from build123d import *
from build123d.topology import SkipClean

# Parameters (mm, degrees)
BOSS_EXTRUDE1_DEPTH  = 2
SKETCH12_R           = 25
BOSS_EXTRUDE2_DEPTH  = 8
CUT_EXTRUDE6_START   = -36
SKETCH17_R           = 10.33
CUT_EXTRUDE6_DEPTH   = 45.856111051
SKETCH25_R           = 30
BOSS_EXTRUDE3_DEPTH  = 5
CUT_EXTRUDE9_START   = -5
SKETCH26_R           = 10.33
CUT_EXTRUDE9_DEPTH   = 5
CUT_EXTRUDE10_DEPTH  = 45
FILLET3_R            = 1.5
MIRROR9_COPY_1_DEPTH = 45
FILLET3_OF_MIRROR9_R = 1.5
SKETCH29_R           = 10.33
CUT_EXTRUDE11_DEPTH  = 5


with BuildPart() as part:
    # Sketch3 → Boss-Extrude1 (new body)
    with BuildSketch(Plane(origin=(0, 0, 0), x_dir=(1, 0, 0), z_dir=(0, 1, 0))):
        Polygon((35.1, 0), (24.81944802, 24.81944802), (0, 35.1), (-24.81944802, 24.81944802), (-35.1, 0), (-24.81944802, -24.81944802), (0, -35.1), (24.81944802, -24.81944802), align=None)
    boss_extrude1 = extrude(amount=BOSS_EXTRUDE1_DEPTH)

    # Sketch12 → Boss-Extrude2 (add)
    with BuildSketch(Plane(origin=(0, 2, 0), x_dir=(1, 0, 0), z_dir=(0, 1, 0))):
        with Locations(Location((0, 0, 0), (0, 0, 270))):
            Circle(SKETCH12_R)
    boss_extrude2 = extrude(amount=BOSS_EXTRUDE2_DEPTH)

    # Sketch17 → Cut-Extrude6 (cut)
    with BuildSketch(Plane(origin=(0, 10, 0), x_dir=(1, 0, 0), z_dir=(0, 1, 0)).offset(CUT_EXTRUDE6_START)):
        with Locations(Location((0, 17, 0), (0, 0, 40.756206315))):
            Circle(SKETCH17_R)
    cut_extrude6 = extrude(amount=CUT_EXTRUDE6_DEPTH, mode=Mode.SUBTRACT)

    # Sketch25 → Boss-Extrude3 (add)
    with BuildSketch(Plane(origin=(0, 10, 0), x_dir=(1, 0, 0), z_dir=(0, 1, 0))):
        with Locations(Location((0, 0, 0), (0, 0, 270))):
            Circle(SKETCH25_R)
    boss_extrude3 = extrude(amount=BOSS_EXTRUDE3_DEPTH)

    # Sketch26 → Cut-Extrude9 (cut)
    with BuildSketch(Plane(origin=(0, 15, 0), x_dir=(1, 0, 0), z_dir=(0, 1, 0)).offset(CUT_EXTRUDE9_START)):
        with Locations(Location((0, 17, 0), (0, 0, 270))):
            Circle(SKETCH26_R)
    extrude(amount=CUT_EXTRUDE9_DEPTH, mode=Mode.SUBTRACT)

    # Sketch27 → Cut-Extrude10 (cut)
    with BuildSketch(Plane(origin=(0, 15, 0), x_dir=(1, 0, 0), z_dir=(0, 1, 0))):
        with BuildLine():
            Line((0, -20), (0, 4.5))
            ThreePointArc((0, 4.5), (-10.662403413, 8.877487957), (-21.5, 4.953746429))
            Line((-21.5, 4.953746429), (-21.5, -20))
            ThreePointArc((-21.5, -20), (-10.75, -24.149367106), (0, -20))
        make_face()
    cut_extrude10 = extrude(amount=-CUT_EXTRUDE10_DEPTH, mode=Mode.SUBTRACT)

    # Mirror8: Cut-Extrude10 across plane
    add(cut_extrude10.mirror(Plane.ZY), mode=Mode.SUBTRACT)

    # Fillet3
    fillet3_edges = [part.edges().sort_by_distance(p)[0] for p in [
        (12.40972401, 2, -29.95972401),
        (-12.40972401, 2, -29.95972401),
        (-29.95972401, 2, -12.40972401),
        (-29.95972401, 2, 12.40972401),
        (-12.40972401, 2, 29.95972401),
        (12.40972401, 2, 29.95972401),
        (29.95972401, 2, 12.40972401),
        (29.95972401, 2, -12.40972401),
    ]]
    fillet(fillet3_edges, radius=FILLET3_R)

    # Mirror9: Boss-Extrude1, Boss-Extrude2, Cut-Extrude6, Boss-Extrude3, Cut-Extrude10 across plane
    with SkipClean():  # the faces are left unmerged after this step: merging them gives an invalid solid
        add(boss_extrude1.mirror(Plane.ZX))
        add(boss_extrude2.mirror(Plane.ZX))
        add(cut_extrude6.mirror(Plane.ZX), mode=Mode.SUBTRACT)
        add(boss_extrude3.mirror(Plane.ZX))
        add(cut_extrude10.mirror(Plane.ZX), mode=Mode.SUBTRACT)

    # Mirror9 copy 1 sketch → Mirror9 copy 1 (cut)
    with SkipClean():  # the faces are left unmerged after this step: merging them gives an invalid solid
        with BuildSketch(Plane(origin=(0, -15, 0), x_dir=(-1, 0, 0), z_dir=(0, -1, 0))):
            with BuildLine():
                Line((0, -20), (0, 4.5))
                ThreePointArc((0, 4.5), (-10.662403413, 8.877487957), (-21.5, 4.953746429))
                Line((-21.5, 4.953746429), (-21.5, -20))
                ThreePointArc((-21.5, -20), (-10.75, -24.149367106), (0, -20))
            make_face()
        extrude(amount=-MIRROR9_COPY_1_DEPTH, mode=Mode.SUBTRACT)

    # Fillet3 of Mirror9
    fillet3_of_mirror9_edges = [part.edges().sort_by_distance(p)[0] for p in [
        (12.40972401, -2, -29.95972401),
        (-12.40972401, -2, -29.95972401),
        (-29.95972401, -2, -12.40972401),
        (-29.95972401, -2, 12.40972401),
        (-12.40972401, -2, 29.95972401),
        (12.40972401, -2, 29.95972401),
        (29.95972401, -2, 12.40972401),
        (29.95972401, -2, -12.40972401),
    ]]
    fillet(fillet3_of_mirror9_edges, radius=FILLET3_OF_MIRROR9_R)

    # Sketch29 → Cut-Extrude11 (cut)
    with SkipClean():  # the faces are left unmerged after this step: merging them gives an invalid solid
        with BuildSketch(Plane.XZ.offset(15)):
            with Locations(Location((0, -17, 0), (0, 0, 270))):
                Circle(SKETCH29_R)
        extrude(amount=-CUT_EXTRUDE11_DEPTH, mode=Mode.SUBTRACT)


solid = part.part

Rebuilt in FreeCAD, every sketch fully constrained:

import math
import FreeCAD as App
import Part
import Sketcher
Q = App.Units.Quantity


def edges_at(feature, points):
    """Names of the edges that pass closest to the given points."""
    edges = feature.Shape.Edges
    near = lambda p: min(range(len(edges)), key=lambda i: edges[i].distToShape(Part.Vertex(*p))[0])
    return sorted({f"Edge{near(p) + 1}" for p in points})

doc = App.newDocument("Part")
body = doc.addObject("PartDesign::Body", "Body")

# Sketch on XZ plane
sketch1 = body.newObject("Sketcher::SketchObject", "Sketch")
sketch1.AttachmentSupport = (doc.getObject("XZ_Plane"), [""])
sketch1.MapMode = "FlatFace"
sketch1.addGeometry([
    Part.LineSegment(App.Vector(35, 0, 0), App.Vector(25, -25, 0)),  # 0
    Part.LineSegment(App.Vector(25, -25, 0), App.Vector(0, -35, 0)),  # 1
    Part.LineSegment(App.Vector(0, -35, 0), App.Vector(-25, -25, 0)),  # 2
    Part.LineSegment(App.Vector(-25, -25, 0), App.Vector(-35, 0, 0)),  # 3
    Part.LineSegment(App.Vector(-35, 0, 0), App.Vector(-25, 25, 0)),  # 4
    Part.LineSegment(App.Vector(-25, 25, 0), App.Vector(0, 35, 0)),  # 5
    Part.LineSegment(App.Vector(0, 35, 0), App.Vector(25, 25, 0)),  # 6
    Part.LineSegment(App.Vector(25, 25, 0), App.Vector(35, 0, 0)),  # 7
], False)
sketch1.addConstraint([
    Sketcher.Constraint("Coincident", 0, 2, 1, 1),
    Sketcher.Constraint("Coincident", 1, 2, 2, 1),
    Sketcher.Constraint("Coincident", 2, 2, 3, 1),
    Sketcher.Constraint("Coincident", 3, 2, 4, 1),
    Sketcher.Constraint("Coincident", 4, 2, 5, 1),
    Sketcher.Constraint("Coincident", 5, 2, 6, 1),
    Sketcher.Constraint("Coincident", 6, 2, 7, 1),
    Sketcher.Constraint("Coincident", 7, 2, 0, 1),
    Sketcher.Constraint("Symmetric", 0, 2, 4, 2, -1, 1),
    Sketcher.Constraint("Symmetric", 1, 2, 5, 2, -1, 1),
    Sketcher.Constraint("Symmetric", 2, 2, 6, 2, -1, 1),
    Sketcher.Constraint("Symmetric", 3, 2, 7, 2, -1, 1),
    Sketcher.Constraint("Symmetric", 0, 2, 2, 2, -2),
    Sketcher.Constraint("PointOnObject", 1, 2, -2),
    Sketcher.Constraint("PointOnObject", 3, 2, -1),
    Sketcher.Constraint("Perpendicular", 0, 2),
    Sketcher.Constraint("Equal", 0, 1),
    Sketcher.Constraint("Angle", 0, Q("-112.5 deg")),
    Sketcher.Constraint("DistanceY", 1, 2, -1, 1, 35.1),
])
pad1 = body.newObject("PartDesign::Pad", "Pad")
pad1.Profile = sketch1
pad1.Length = 2
pad1.Reversed = True

# Sketch on XZ plane
sketch2 = body.newObject("Sketcher::SketchObject", "Sketch001")
sketch2.AttachmentSupport = (doc.getObject("XZ_Plane"), [""])
sketch2.MapMode = "FlatFace"
sketch2.AttachmentOffset = App.Placement(App.Vector(0, 0, -2), App.Rotation())
sketch2.addGeometry(Part.Circle(App.Vector(0, 0, 0), App.Vector(0, 0, 1), 25), False)
sketch2.addConstraint([
    Sketcher.Constraint("Coincident", 0, 3, -1, 1),
    Sketcher.Constraint("Diameter", 0, 50.0),
])
pad2 = body.newObject("PartDesign::Pad", "Pad001")
pad2.Profile = sketch2
pad2.Length = 8
pad2.Reversed = True

# Sketch on XZ plane
sketch3 = body.newObject("Sketcher::SketchObject", "Sketch002")
sketch3.AttachmentSupport = (doc.getObject("XZ_Plane"), [""])
sketch3.MapMode = "FlatFace"
sketch3.AttachmentOffset = App.Placement(App.Vector(0, 0, 26), App.Rotation())
sketch3.addGeometry(Part.Circle(App.Vector(0, -17, 0), App.Vector(0, 0, 1), 10), False)
sketch3.addConstraint([
    Sketcher.Constraint("PointOnObject", 0, 3, -2),
    Sketcher.Constraint("Diameter", 0, 20.66),
    Sketcher.Constraint("DistanceY", 0, 3, -1, 1, 17.0),
])
pocket1 = body.newObject("PartDesign::Pocket", "Pocket")
pocket1.Profile = sketch3
pocket1.Length = 45.856111

# Sketch on XZ plane
sketch4 = body.newObject("Sketcher::SketchObject", "Sketch003")
sketch4.AttachmentSupport = (doc.getObject("XZ_Plane"), [""])
sketch4.MapMode = "FlatFace"
sketch4.AttachmentOffset = App.Placement(App.Vector(0, 0, -10), App.Rotation())
sketch4.addGeometry(Part.Circle(App.Vector(0, 0, 0), App.Vector(0, 0, 1), 30), False)
sketch4.addConstraint([
    Sketcher.Constraint("Coincident", 0, 3, -1, 1),
    Sketcher.Constraint("Diameter", 0, 60.0),
])
pad3 = body.newObject("PartDesign::Pad", "Pad002")
pad3.Profile = sketch4
pad3.Length = 5
pad3.Reversed = True

# Sketch on XZ plane
sketch5 = body.newObject("Sketcher::SketchObject", "Sketch004")
sketch5.AttachmentSupport = (doc.getObject("XZ_Plane"), [""])
sketch5.MapMode = "FlatFace"
sketch5.AttachmentOffset = App.Placement(App.Vector(0, 0, -10), App.Rotation())
sketch5.addGeometry(Part.Circle(App.Vector(0, -17, 0), App.Vector(0, 0, 1), 10), False)
sketch5.addConstraint([
    Sketcher.Constraint("PointOnObject", 0, 3, -2),
    Sketcher.Constraint("Diameter", 0, 20.66),
    Sketcher.Constraint("DistanceY", 0, 3, -1, 1, 17.0),
])
pocket2 = body.newObject("PartDesign::Pocket", "Pocket001")
pocket2.Profile = sketch5
pocket2.Length = 5

# Sketch on XZ plane
sketch6 = body.newObject("Sketcher::SketchObject", "Sketch005")
sketch6.AttachmentSupport = (doc.getObject("XZ_Plane"), [""])
sketch6.MapMode = "FlatFace"
sketch6.AttachmentOffset = App.Placement(App.Vector(0, 0, -15), App.Rotation())
sketch6.addGeometry([
    Part.LineSegment(App.Vector(0, 20, 0), App.Vector(0, -4, 0)),
    Part.ArcOfCircle(Part.Circle(App.Vector(-11, 7, 0), App.Vector(0, 0, 1), 16), math.radians(-131), math.radians(-47)),
    Part.LineSegment(App.Vector(-22, -5, 0), App.Vector(-22, 20, 0)),
    Part.ArcOfCircle(Part.Circle(App.Vector(-11, 8, 0), App.Vector(0, 0, 1), 16), math.radians(48), math.radians(132)),
], False)
sketch6.addConstraint([
    Sketcher.Constraint("Coincident", 0, 2, 1, 2),
    Sketcher.Constraint("Coincident", 1, 1, 2, 1),
    Sketcher.Constraint("Coincident", 2, 2, 3, 2),
    Sketcher.Constraint("Coincident", 3, 1, 0, 1),
    Sketcher.Constraint("Vertical", 0),
    Sketcher.Constraint("Vertical", 2),
    Sketcher.Constraint("Equal", 1, 3),
    Sketcher.Constraint("PointOnObject", 0, 2, -2),
    Sketcher.Constraint("Horizontal", 2, 2, 3, 1),
    Sketcher.Constraint("Radius", 1, 16.0),
    Sketcher.Constraint("DistanceY", 0, 2, 0, 1, 24.5),
    Sketcher.Constraint("DistanceX", 1, 3, -1, 1, 11.0),
    Sketcher.Constraint("DistanceY", -1, 1, 2, 2, 20.0),
    Sketcher.Constraint("DistanceX", 1, 1, -1, 1, 21.5),
])
pocket3 = body.newObject("PartDesign::Pocket", "Pocket002")
pocket3.Profile = sketch6
pocket3.Length = 45
pocket3.Reversed = True
doc.recompute()

mirrored = body.newObject("PartDesign::Mirrored", "Mirrored")
mirrored.Originals = [pocket3]
mirrored.MirrorPlane = (doc.getObject("YZ_Plane"), [""])
body.Tip = mirrored
doc.recompute()

fillet = body.newObject("PartDesign::Fillet", "Fillet")
fillet.Base = (mirrored, edges_at(mirrored, [
    (12.41, 2, -29.96),
    (-12.41, 2, -29.96),
    (-29.96, 2, -12.41),
    (-29.96, 2, 12.41),
    (-12.41, 2, 29.96),
    (12.41, 2, 29.96),
    (29.96, 2, 12.41),
    (29.96, 2, -12.41),
]))
fillet.Radius = 1.5
doc.recompute()

mirrored2 = body.newObject("PartDesign::Mirrored", "Mirrored001")
mirrored2.Originals = [pad1, pad2, pocket1, pad3, pocket3]
mirrored2.MirrorPlane = (doc.getObject("XZ_Plane"), [""])
body.Tip = mirrored2

# Sketch on XZ plane
sketch7 = body.newObject("Sketcher::SketchObject", "Sketch006")
sketch7.AttachmentSupport = (doc.getObject("XZ_Plane"), [""])
sketch7.MapMode = "FlatFace"
sketch7.AttachmentOffset = App.Placement(App.Vector(0, 0, 15), App.Rotation())
sketch7.addGeometry([
    Part.LineSegment(App.Vector(0, 20, 0), App.Vector(0, -4, 0)),
    Part.ArcOfCircle(Part.Circle(App.Vector(11, 7, 0), App.Vector(0, 0, 1), 16), math.radians(-133), math.radians(-49)),
    Part.LineSegment(App.Vector(22, -5, 0), App.Vector(22, 20, 0)),
    Part.ArcOfCircle(Part.Circle(App.Vector(11, 8, 0), App.Vector(0, 0, 1), 16), math.radians(48), math.radians(132)),
], False)
sketch7.addConstraint([
    Sketcher.Constraint("Coincident", 0, 2, 1, 1),
    Sketcher.Constraint("Coincident", 1, 2, 2, 1),
    Sketcher.Constraint("Coincident", 2, 2, 3, 1),
    Sketcher.Constraint("Coincident", 3, 2, 0, 1),
    Sketcher.Constraint("Vertical", 0),
    Sketcher.Constraint("Vertical", 2),
    Sketcher.Constraint("Equal", 1, 3),
    Sketcher.Constraint("PointOnObject", 0, 2, -2),
    Sketcher.Constraint("Horizontal", 2, 2, 3, 2),
    Sketcher.Constraint("Radius", 1, 16.0),
    Sketcher.Constraint("DistanceY", 0, 2, 0, 1, 24.5),
    Sketcher.Constraint("DistanceX", -1, 1, 1, 3, 11.0),
    Sketcher.Constraint("DistanceY", -1, 1, 2, 2, 20.0),
    Sketcher.Constraint("DistanceX", -1, 1, 1, 2, 21.5),
])
pocket4 = body.newObject("PartDesign::Pocket", "Pocket003")
pocket4.Profile = sketch7
pocket4.Length = 45
doc.recompute()

fillet2 = body.newObject("PartDesign::Fillet", "Fillet001")
fillet2.Base = (pocket4, edges_at(pocket4, [
    (12.41, -2, -29.96),
    (-12.41, -2, -29.96),
    (-29.96, -2, -12.41),
    (-29.96, -2, 12.41),
    (-12.41, -2, 29.96),
    (12.41, -2, 29.96),
    (29.96, -2, 12.41),
    (29.96, -2, -12.41),
]))
fillet2.Radius = 1.5

# Sketch on XZ plane
sketch8 = body.newObject("Sketcher::SketchObject", "Sketch007")
sketch8.AttachmentSupport = (doc.getObject("XZ_Plane"), [""])
sketch8.MapMode = "FlatFace"
sketch8.AttachmentOffset = App.Placement(App.Vector(0, 0, 15), App.Rotation())
sketch8.addGeometry(Part.Circle(App.Vector(0, -17, 0), App.Vector(0, 0, 1), 10), False)
sketch8.addConstraint([
    Sketcher.Constraint("PointOnObject", 0, 3, -2),
    Sketcher.Constraint("Diameter", 0, 20.66),
    Sketcher.Constraint("DistanceY", 0, 3, -1, 1, 17.0),
])
pocket5 = body.newObject("PartDesign::Pocket", "Pocket004")
pocket5.Profile = sketch8
pocket5.Length = 5

doc.recompute()
